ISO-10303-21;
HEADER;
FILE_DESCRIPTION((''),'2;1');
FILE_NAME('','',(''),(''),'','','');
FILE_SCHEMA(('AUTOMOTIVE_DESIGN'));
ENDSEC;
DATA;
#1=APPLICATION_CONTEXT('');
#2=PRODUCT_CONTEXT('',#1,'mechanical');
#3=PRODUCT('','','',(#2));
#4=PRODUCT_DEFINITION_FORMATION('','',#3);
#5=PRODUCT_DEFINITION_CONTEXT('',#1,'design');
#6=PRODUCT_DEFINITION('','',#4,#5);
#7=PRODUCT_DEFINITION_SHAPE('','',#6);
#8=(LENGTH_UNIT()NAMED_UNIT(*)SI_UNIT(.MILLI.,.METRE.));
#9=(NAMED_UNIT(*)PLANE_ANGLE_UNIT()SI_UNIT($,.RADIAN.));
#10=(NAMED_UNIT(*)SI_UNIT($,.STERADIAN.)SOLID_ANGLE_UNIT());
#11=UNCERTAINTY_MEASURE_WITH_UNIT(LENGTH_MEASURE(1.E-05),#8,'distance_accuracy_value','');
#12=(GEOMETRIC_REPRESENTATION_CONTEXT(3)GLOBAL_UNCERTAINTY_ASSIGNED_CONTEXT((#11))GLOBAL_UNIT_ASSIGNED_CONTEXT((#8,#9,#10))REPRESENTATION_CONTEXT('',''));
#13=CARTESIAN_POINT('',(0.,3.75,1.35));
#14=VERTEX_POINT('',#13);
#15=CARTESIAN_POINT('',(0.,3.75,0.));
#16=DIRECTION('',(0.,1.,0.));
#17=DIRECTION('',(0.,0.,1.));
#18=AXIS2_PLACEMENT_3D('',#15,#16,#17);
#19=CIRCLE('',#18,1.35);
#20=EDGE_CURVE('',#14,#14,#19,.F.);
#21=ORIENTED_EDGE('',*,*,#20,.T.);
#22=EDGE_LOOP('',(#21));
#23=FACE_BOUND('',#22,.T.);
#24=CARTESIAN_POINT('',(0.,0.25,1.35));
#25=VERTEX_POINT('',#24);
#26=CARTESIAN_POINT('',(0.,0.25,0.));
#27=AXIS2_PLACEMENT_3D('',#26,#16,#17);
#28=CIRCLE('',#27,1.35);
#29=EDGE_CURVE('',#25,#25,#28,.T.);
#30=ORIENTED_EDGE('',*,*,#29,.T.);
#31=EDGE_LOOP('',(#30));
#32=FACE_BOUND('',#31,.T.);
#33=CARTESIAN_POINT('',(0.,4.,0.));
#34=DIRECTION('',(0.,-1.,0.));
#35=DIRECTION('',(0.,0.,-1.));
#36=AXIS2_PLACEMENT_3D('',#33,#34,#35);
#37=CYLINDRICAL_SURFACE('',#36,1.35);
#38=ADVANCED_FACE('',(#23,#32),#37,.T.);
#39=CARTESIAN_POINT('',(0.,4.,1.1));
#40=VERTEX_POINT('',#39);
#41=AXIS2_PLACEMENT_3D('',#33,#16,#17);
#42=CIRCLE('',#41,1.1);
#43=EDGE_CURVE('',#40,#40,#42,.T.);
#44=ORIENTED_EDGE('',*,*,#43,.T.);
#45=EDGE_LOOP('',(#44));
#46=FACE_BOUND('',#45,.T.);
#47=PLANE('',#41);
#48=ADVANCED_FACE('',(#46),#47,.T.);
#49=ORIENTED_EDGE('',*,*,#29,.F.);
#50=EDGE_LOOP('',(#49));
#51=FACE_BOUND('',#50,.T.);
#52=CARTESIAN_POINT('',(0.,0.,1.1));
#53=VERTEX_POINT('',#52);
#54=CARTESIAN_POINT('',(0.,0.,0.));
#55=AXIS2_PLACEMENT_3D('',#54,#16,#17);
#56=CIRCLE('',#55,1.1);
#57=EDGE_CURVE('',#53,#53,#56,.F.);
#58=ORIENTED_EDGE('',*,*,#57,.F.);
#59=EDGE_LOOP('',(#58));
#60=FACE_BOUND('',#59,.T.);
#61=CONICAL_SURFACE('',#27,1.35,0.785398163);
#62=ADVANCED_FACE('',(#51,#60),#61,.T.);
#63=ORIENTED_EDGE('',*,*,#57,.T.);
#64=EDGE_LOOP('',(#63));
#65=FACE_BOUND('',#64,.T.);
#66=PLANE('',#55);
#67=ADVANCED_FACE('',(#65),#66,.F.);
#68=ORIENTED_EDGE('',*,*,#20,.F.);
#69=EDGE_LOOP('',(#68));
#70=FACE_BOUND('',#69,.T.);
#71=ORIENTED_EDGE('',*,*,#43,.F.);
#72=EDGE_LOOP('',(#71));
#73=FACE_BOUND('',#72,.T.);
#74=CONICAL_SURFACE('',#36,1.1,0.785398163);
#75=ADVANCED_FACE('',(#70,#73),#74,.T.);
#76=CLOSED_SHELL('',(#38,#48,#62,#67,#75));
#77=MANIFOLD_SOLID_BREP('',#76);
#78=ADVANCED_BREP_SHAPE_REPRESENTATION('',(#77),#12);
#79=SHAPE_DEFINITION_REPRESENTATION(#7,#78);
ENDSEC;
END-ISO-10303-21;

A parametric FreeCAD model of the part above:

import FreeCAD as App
import Part
import Sketcher
from FreeCAD import Vector
Q = App.Units.Quantity


def edges_at(feature, points):
    """Names of the edges that pass closest to the given points."""
    edges = feature.Shape.Edges
    near = lambda p: min(range(len(edges)), key=lambda i: edges[i].distToShape(Part.Vertex(*p))[0])
    return sorted({f"Edge{near(p) + 1}" for p in points})

doc = App.newDocument("Part")
body = doc.addObject("PartDesign::Body", "Body")

# Sketch on XZ plane
sketch1 = body.newObject("Sketcher::SketchObject", "Sketch")
sketch1.AttachmentSupport = (doc.getObject("XZ_Plane"), [""])
sketch1.MapMode = "FlatFace"
sketch1.addGeometry(Part.Circle(Vector(0, 0, 0), Vector(0, 0, 1), 1.4), False)
sketch1.addConstraint(Sketcher.Constraint("Coincident", 0, 3, -1, 1))
sketch1.addConstraint(Sketcher.Constraint("Diameter", 0, Q("2.7 mm")))
pad1 = body.newObject("PartDesign::Pad", "Pad")
pad1.Profile = sketch1
pad1.Length = 4
pad1.Reversed = True
doc.recompute()

chamfer = body.newObject("PartDesign::Chamfer", "Chamfer")
chamfer.Base = (pad1, edges_at(pad1, [(-1.35, 0, 0), (-1.35, 4, 0)]))
chamfer.Size = 0.25

doc.recompute()
